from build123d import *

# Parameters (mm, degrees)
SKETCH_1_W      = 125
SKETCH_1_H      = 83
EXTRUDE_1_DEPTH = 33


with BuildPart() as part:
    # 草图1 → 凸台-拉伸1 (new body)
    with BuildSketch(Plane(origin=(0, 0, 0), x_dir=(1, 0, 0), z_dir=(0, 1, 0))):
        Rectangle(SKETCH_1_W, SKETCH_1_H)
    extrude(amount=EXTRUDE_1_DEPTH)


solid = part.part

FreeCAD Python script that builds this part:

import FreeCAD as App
import Part
import Sketcher
Q = App.Units.Quantity

doc = App.newDocument("Part")
body = doc.addObject("PartDesign::Body", "Body")

# Sketch on XZ plane
sketch1 = body.newObject("Sketcher::SketchObject", "Sketch")
sketch1.AttachmentSupport = (doc.getObject("XZ_Plane"), [""])
sketch1.MapMode = "FlatFace"
sketch1.addGeometry(Part.LineSegment(App.Vector(-62, -42, 0), App.Vector(-62, 42, 0)), False)
sketch1.addGeometry(Part.LineSegment(App.Vector(-62, 42, 0), App.Vector(62, 42, 0)), False)
sketch1.addGeometry(Part.LineSegment(App.Vector(62, 42, 0), App.Vector(62, -42, 0)), False)
sketch1.addGeometry(Part.LineSegment(App.Vector(62, -42, 0), App.Vector(-62, -42, 0)), False)
sketch1.addConstraint(Sketcher.Constraint("Coincident", 0, 2, 1, 1))
sketch1.addConstraint(Sketcher.Constraint("Coincident", 1, 2, 2, 1))
sketch1.addConstraint(Sketcher.Constraint("Coincident", 2, 2, 3, 1))
sketch1.addConstraint(Sketcher.Constraint("Coincident", 3, 2, 0, 1))
sketch1.addConstraint(Sketcher.Constraint("Vertical", 0))
sketch1.addConstraint(Sketcher.Constraint("Horizontal", 1))
sketch1.addConstraint(Sketcher.Constraint("Vertical", 2))
sketch1.addConstraint(Sketcher.Constraint("Horizontal", 3))
sketch1.addConstraint(Sketcher.Constraint("Symmetric", 0, 2, 2, 2, -1, 1))
sketch1.addConstraint(Sketcher.Constraint("DistanceX", 1, 1, 1, 2, Q("125 mm")))
sketch1.addConstraint(Sketcher.Constraint("DistanceY", 0, 1, 0, 2, Q("83 mm")))
pad1 = body.newObject("PartDesign::Pad", "Pad")
pad1.Profile = sketch1
pad1.Length = 33
pad1.Reversed = True

doc.recompute()
